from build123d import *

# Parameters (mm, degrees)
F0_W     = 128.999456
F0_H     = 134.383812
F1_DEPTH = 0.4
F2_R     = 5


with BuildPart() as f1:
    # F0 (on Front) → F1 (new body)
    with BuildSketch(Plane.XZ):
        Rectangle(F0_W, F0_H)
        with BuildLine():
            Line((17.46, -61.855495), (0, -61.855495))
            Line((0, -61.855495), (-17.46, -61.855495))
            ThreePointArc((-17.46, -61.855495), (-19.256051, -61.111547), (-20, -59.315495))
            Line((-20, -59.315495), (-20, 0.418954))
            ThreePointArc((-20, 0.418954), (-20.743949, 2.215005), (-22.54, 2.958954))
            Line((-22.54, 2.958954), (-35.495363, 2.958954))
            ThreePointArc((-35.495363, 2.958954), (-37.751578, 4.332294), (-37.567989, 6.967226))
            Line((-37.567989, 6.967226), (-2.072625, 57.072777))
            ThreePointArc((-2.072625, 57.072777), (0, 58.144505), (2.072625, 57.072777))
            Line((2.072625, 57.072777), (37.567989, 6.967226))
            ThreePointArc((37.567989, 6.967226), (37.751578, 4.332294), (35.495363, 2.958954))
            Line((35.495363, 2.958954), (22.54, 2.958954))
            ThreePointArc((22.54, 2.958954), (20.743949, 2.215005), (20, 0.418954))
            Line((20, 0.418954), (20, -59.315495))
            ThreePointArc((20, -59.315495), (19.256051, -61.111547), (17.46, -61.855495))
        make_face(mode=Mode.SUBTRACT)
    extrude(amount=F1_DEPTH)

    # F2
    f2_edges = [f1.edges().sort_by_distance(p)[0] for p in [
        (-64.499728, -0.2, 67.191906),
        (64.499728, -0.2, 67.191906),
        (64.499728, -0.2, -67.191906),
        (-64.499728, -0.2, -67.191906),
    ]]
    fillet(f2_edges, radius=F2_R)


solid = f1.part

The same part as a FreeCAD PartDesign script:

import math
import FreeCAD as App
import Part
import Sketcher
from FreeCAD import Vector
Q = App.Units.Quantity


def edges_at(feature, points):
    """Names of the edges that pass closest to the given points."""
    edges = feature.Shape.Edges
    near = lambda p: min(range(len(edges)), key=lambda i: edges[i].distToShape(Part.Vertex(*p))[0])
    return sorted({f"Edge{near(p) + 1}" for p in points})

doc = App.newDocument("Part")
params = doc.addObject("Spreadsheet::Sheet", "Params")
for row, (alias, value) in enumerate([
    ("sketch1_radius", "0.1 in"),
    ("sketch1_radius2", "0.1 in"),
    ("sketch1_radius3", "0.1 in"),
    ("sketch1_radius4", "0.1 in"),
    ("sketch1_radius5", "0.0999999 in"),
    ("pad1_length", "0.4 mm"),
    ("fillet_radius", "5 mm"),
], start=1):
    params.set(f"A{row}", alias)
    params.set(f"B{row}", "=" + value)
    params.setAlias(f"B{row}", alias)

body = doc.addObject("PartDesign::Body", "Body")

# Sketch on XZ plane
sketch1 = doc.addObject("Sketcher::SketchObject", "Sketch")
body.addObject(sketch1)
sketch1.AttachmentSupport = (doc.XZ_Plane, [""])
sketch1.MapMode = "FlatFace"
sketch1.addGeometry([
    Part.LineSegment(Vector(-64.499728, 67.191906, 0), Vector(-64.499728, -67.191906, 0)),  # 0
    Part.LineSegment(Vector(-64.499728, -67.191906, 0), Vector(64.499728, -67.191906, 0)),  # 1
    Part.LineSegment(Vector(64.499728, -67.191906, 0), Vector(64.499728, 67.191906, 0)),  # 2
    Part.LineSegment(Vector(64.499728, 67.191906, 0), Vector(-64.499728, 67.191906, 0)),  # 3
    Part.ArcOfCircle(Part.Circle(Vector(17.460001, -59.315496, 0), Vector(0, 0, 1), 2.539999), math.radians(-90.000021), math.radians(0.000021)),  # 4
    Part.LineSegment(Vector(17.46, -61.855495, 0), Vector(-17.46, -61.855495, 0)),  # 5
    Part.ArcOfCircle(Part.Circle(Vector(-17.460001, -59.315496, 0), Vector(0, 0, 1), 2.539999), math.radians(179.999979), math.radians(270.000021)),  # 6
    Part.LineSegment(Vector(-20, -59.315495, 0), Vector(-20, 0.418954, 0)),  # 7
    Part.ArcOfCircle(Part.Circle(Vector(-22.540001, 0.418953, 0), Vector(0, 0, 1), 2.540001), math.radians(0.000017), math.radians(89.999983)),  # 8
    Part.LineSegment(Vector(-22.54, 2.958954, 0), Vector(-35.495363, 2.958954, 0)),  # 9
    Part.ArcOfCircle(Part.Circle(Vector(-35.495363, 5.498954, 0), Vector(0, 0, 1), 2.54), math.radians(144.6858), math.radians(270.000009)),  # 10
    Part.LineSegment(Vector(-37.567989, 6.967226, 0), Vector(-2.072625, 57.072777, 0)),  # 11
    Part.ArcOfCircle(Part.Circle(Vector(0, 55.604506, 0), Vector(0, 0, 1), 2.539999), math.radians(35.314182), math.radians(144.685818)),  # 12
    Part.LineSegment(Vector(2.072625, 57.072777, 0), Vector(37.567989, 6.967226, 0)),  # 13
    Part.ArcOfCircle(Part.Circle(Vector(35.495363, 5.498954, 0), Vector(0, 0, 1), 2.54), math.radians(-90.000009), math.radians(35.3142)),  # 14
    Part.LineSegment(Vector(35.495363, 2.958954, 0), Vector(22.54, 2.958954, 0)),  # 15
    Part.ArcOfCircle(Part.Circle(Vector(22.540001, 0.418953, 0), Vector(0, 0, 1), 2.540001), math.radians(90.000017), math.radians(179.999983)),  # 16
    Part.LineSegment(Vector(20, 0.418954, 0), Vector(20, -59.315495, 0)),  # 17
], False)
sketch1.addConstraint([
    Sketcher.Constraint("Coincident", 0, 2, 1, 1),
    Sketcher.Constraint("Coincident", 1, 2, 2, 1),
    Sketcher.Constraint("Coincident", 2, 2, 3, 1),
    Sketcher.Constraint("Coincident", 3, 2, 0, 1),
    Sketcher.Constraint("Coincident", 4, 1, 5, 1),
    Sketcher.Constraint("Coincident", 5, 2, 6, 2),
    Sketcher.Constraint("Coincident", 6, 1, 7, 1),
    Sketcher.Constraint("Coincident", 7, 2, 8, 1),
    Sketcher.Constraint("Coincident", 8, 2, 9, 1),
    Sketcher.Constraint("Coincident", 9, 2, 10, 2),
    Sketcher.Constraint("Coincident", 10, 1, 11, 1),
    Sketcher.Constraint("Coincident", 11, 2, 12, 2),
    Sketcher.Constraint("Coincident", 12, 1, 13, 1),
    Sketcher.Constraint("Coincident", 13, 2, 14, 2),
    Sketcher.Constraint("Coincident", 14, 1, 15, 1),
    Sketcher.Constraint("Coincident", 15, 2, 16, 1),
    Sketcher.Constraint("Coincident", 16, 2, 17, 1),
    Sketcher.Constraint("Coincident", 17, 2, 4, 2),
    Sketcher.Constraint("Vertical", 0),
    Sketcher.Constraint("Horizontal", 1),
    Sketcher.Constraint("Vertical", 2),
    Sketcher.Constraint("Horizontal", 3),
    Sketcher.Constraint("Horizontal", 5),
    Sketcher.Constraint("Vertical", 7),
    Sketcher.Constraint("Horizontal", 9),
    Sketcher.Constraint("Horizontal", 15),
    Sketcher.Constraint("Vertical", 17),
    Sketcher.Constraint("PointOnObject", 12, 3, -2),
    Sketcher.Constraint("Radius", 4, Q("0.1 in")),
    Sketcher.Constraint("Radius", 6, Q("0.1 in")),
    Sketcher.Constraint("Radius", 8, Q("0.1 in")),
    Sketcher.Constraint("Radius", 10, Q("0.1 in")),
    Sketcher.Constraint("Radius", 12, Q("0.0999999 in")),
    Sketcher.Constraint("Radius", 14, Q("0.1 in")),
    Sketcher.Constraint("Radius", 16, Q("0.1 in")),
    Sketcher.Constraint("DistanceY", 8, 3, 14, 3, Q("0.2 in")),
    Sketcher.Constraint("DistanceX", 4, 1, 16, 3, Q("0.2 in")),
    Sketcher.Constraint("DistanceX", 8, 3, 5, 2, Q("0.2 in")),
    Sketcher.Constraint("DistanceY", 5, 2, 6, 1, Q("0.1 in")),
    Sketcher.Constraint("DistanceY", 7, 2, 10, 3, Q("0.2 in")),
    Sketcher.Constraint("DistanceX", 8, 2, 7, 2, Q("0.1 in")),
    Sketcher.Constraint("DistanceX", 16, 2, 15, 2, Q("0.1 in")),
    Sketcher.Constraint("DistanceY", 16, 2, 15, 2, Q("0.1 in")),
    Sketcher.Constraint("DistanceY", 4, 1, 17, 2, Q("0.1 in")),
    Sketcher.Constraint("DistanceX", 5, 2, 5, 1, Q("34.92 mm")),
    Sketcher.Constraint("DistanceY", 0, 2, 0, 1, Q("134.383812 mm")),
    Sketcher.Constraint("DistanceY", 7, 1, 7, 2, Q("59.734449 mm")),
    Sketcher.Constraint("DistanceX", -1, 1, 4, 3, Q("17.460001 mm")),
    Sketcher.Constraint("DistanceY", 12, 3, 2, 2, Q("11.5874 mm")),
    Sketcher.Constraint("DistanceX", 1, 1, 1, 2, Q("128.999456 mm")),
    Sketcher.Constraint("DistanceX", 9, 2, 9, 1, Q("12.955363 mm")),
    Sketcher.Constraint("DistanceX", 15, 2, 15, 1, Q("12.955363 mm")),
    Sketcher.Constraint("DistanceX", 0, 2, -1, 1, Q("64.499728 mm")),
    Sketcher.Constraint("DistanceX", 10, 1, -1, 1, Q("37.567989 mm")),
    Sketcher.Constraint("DistanceX", -1, 1, 13, 2, Q("37.567989 mm")),
    Sketcher.Constraint("DistanceY", 0, 2, 6, 3, Q("7.87641 mm")),
    Sketcher.Constraint("DistanceX", 10, 3, 2, 2, Q("99.995091 mm")),
    Sketcher.Constraint("DistanceX", 3, 2, 14, 3, Q("99.995091 mm")),
    Sketcher.Constraint("DistanceY", 12, 3, 11, 2, Q("1.468271 mm")),
    Sketcher.Constraint("DistanceY", 12, 3, 12, 1, Q("1.468271 mm")),
    Sketcher.Constraint("DistanceY", 4, 3, -1, 1, Q("59.315496 mm")),
])
sketch1.setExpression("Constraints[28]", "Params.sketch1_radius")
sketch1.setExpression("Constraints[29]", "Params.sketch1_radius2")
sketch1.setExpression("Constraints[30]", "Params.sketch1_radius3")
sketch1.setExpression("Constraints[31]", "Params.sketch1_radius4")
sketch1.setExpression("Constraints[32]", "Params.sketch1_radius5")
pad1 = doc.addObject("PartDesign::Pad", "Pad")
body.addObject(pad1)
pad1.Profile = sketch1
pad1.setExpression("Length", "Params.pad1_length")
doc.recompute()

fillet = doc.addObject("PartDesign::Fillet", "Fillet")
body.addObject(fillet)
fillet.Base = (pad1, edges_at(pad1, [
    (-64.5, -0.2, 67.192),
    (64.5, -0.2, 67.192),
    (64.5, -0.2, -67.192),
    (-64.5, -0.2, -67.192),
]))
fillet.setExpression("Radius", "Params.fillet_radius")

doc.recompute()
